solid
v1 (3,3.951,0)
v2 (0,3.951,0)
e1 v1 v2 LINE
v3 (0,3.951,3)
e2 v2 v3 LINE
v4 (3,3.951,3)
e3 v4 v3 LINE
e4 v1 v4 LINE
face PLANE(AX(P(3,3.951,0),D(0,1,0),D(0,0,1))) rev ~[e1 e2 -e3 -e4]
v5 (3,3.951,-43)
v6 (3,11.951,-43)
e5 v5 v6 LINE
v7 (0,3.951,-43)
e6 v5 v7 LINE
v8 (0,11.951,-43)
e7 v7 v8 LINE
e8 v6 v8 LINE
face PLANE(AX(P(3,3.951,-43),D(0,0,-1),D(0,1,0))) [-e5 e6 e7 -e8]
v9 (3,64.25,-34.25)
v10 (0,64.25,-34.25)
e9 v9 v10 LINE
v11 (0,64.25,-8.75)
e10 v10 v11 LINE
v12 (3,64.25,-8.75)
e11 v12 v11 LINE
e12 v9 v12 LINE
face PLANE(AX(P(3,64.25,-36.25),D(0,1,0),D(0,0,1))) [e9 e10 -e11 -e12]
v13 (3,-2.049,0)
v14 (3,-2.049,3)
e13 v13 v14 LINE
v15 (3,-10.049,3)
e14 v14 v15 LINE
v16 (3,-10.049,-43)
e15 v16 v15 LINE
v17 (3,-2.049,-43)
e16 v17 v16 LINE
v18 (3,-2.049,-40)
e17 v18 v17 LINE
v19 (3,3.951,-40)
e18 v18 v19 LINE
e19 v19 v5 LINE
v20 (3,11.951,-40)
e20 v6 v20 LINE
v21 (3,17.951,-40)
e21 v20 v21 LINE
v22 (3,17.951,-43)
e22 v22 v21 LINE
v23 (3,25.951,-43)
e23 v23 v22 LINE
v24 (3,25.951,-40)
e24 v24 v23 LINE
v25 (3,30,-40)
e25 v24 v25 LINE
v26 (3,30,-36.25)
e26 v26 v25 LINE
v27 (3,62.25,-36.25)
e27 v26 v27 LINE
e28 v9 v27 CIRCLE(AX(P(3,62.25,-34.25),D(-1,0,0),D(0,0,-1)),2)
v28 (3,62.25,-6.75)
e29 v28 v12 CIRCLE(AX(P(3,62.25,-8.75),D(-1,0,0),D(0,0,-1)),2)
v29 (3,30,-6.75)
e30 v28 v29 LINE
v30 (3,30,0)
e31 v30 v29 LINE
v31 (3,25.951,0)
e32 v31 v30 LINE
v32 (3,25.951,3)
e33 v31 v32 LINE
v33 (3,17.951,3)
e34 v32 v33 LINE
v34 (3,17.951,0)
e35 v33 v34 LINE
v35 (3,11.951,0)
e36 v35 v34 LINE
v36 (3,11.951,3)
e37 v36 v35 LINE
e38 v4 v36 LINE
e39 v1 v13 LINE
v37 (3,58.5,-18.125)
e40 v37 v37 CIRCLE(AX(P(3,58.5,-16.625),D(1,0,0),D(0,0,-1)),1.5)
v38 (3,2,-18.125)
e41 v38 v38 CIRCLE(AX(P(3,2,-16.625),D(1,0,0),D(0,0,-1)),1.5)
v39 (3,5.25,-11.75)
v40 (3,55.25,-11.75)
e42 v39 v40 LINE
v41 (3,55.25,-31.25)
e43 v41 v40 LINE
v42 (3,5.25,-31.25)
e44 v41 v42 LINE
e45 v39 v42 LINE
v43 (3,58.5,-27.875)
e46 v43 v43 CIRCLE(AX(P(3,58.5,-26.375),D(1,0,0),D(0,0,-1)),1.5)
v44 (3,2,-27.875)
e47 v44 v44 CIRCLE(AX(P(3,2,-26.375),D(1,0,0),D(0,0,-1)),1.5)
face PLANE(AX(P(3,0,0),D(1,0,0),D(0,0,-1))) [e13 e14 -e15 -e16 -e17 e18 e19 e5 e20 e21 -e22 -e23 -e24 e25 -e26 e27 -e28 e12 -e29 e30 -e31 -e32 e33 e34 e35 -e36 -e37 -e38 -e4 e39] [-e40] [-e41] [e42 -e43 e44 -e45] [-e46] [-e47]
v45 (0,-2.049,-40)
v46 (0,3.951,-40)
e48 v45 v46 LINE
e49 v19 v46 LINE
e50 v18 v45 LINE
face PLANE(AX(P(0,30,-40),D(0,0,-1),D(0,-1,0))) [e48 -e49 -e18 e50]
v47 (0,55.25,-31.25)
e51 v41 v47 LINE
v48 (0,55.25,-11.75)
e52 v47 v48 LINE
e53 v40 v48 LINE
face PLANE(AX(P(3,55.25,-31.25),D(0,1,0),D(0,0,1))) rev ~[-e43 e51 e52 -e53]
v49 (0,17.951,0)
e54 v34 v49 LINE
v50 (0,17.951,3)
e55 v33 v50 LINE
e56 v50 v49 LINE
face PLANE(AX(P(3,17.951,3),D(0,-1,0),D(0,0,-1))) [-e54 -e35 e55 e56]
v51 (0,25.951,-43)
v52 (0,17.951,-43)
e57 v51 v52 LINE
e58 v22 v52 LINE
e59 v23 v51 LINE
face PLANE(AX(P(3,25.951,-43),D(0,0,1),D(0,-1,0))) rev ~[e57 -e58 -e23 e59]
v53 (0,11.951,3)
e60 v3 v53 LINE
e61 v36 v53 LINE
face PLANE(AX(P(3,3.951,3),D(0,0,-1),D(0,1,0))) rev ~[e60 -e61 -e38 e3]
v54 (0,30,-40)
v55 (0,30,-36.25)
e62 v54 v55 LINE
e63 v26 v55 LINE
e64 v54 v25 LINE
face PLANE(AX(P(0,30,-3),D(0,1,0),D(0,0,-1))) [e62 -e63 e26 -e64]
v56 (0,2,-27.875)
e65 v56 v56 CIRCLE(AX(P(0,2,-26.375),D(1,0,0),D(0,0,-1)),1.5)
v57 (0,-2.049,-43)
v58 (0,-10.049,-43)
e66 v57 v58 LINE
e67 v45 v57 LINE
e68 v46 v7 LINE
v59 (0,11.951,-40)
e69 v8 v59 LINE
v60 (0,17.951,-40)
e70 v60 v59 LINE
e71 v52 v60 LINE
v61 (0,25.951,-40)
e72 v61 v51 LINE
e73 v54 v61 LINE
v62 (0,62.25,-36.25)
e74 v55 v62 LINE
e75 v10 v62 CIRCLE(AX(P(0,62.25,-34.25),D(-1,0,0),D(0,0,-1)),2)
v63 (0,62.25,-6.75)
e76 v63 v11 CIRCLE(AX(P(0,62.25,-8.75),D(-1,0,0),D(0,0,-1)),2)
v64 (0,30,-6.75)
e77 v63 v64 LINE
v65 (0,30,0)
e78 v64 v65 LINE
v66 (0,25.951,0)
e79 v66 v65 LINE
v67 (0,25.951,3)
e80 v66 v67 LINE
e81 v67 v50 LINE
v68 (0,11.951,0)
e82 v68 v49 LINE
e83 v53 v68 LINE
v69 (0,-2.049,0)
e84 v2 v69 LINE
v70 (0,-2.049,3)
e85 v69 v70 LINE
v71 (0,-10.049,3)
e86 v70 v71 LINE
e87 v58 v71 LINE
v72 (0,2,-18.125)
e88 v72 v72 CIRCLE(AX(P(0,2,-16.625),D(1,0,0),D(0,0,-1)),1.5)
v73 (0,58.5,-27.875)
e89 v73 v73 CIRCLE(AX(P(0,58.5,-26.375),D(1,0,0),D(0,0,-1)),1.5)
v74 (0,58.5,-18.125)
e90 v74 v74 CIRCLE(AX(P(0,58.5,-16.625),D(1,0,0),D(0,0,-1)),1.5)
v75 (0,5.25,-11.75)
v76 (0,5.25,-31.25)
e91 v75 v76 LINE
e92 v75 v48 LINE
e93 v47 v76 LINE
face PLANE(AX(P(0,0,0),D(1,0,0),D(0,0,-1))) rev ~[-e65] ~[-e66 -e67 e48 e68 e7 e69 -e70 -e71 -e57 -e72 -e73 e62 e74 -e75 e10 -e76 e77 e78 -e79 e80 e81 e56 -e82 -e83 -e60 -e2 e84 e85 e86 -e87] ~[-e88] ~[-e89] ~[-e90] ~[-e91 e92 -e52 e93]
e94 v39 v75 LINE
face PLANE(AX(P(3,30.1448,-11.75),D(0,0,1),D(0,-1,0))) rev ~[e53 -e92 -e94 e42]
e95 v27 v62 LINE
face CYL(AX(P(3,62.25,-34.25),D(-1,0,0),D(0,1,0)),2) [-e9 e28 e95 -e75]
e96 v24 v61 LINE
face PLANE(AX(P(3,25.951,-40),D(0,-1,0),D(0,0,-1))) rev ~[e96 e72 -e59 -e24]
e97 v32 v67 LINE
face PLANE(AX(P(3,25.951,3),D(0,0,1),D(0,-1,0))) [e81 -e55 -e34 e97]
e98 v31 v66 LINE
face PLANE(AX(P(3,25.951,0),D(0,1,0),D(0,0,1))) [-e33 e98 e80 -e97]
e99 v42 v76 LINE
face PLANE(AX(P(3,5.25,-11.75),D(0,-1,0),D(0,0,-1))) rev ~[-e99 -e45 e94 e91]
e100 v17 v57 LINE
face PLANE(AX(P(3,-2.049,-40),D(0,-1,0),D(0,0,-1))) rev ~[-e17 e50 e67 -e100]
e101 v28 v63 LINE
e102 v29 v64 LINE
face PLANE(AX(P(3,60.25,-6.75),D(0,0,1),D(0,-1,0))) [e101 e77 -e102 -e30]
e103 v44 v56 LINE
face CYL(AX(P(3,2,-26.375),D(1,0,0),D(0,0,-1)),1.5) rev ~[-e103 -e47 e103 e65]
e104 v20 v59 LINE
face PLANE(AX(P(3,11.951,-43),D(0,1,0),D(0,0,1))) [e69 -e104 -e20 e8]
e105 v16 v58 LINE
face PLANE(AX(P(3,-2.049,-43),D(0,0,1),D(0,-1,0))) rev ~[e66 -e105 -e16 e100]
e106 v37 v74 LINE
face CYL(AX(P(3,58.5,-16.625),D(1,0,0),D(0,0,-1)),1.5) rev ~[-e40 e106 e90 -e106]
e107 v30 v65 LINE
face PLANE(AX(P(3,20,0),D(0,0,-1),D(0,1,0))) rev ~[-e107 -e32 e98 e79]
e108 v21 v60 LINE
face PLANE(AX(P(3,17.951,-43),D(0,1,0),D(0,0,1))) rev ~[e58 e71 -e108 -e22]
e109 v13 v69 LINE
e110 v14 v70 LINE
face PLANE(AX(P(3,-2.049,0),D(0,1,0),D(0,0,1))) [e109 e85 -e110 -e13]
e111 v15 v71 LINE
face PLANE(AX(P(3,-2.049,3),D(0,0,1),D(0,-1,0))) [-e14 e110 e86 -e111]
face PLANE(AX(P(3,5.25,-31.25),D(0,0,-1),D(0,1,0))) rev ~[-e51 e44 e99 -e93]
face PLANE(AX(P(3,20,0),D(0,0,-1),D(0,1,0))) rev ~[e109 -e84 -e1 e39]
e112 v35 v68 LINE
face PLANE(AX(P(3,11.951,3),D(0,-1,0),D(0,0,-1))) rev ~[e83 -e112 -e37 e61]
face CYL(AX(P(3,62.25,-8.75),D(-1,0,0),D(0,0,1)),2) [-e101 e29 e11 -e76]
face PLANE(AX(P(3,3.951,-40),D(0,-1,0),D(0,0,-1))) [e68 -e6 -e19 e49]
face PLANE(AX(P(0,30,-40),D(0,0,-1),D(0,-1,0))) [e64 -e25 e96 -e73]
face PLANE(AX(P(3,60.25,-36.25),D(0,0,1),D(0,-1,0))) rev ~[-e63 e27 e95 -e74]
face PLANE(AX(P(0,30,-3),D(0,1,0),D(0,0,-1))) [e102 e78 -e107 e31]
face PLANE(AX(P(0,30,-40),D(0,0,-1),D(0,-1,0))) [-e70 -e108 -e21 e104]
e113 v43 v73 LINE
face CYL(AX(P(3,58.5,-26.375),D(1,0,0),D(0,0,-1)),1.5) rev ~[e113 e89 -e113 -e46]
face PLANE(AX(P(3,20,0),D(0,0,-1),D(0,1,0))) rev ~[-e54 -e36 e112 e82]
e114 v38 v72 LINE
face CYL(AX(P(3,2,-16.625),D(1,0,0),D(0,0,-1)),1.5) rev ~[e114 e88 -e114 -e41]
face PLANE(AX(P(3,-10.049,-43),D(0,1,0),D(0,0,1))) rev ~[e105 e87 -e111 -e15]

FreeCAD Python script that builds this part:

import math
import FreeCAD as App
import Part
import Sketcher

V = App.Vector
Q = App.Units.Quantity


def edges_at(feature, points):
    """Names of the edges that pass closest to the given points."""
    edges = feature.Shape.Edges
    near = lambda p: min(range(len(edges)), key=lambda i: edges[i].distToShape(Part.Vertex(*p))[0])
    return sorted({f"Edge{near(p) + 1}" for p in points})

doc = App.newDocument("Part")
body = doc.addObject("PartDesign::Body", "Body")

# Sketch on YZ plane
sketch1 = body.newObject("Sketcher::SketchObject", "Sketch")
sketch1.AttachmentSupport = (doc.getObject("YZ_Plane"), [""])
sketch1.MapMode = "FlatFace"
sketch1.addGeometry(Part.LineSegment(V(10, -3, 0), V(0, -3, 0)), False)
sketch1.addGeometry(Part.LineSegment(V(0, -3, 0), V(0, -9.5731, 0)), False)
sketch1.addGeometry(Part.ArcOfCircle(Part.Circle(V(15, -21.5, 0), V(0, 0, 1), 19.163793), math.radians(141.510854), math.radians(218.489146)), False)
sketch1.addGeometry(Part.LineSegment(V(0, -33.4269, 0), V(0, -40, 0)), False)
sketch1.addGeometry(Part.LineSegment(V(0, -40, 0), V(10, -40, 0)), False)
sketch1.addGeometry(Part.LineSegment(V(10, -40, 0), V(10, -43, 0)), False)
sketch1.addGeometry(Part.LineSegment(V(10, -43, 0), V(20, -43, 0)), False)
sketch1.addGeometry(Part.LineSegment(V(20, -43, 0), V(20, -40, 0)), False)
sketch1.addGeometry(Part.LineSegment(V(20, -40, 0), V(30, -40, 0)), False)
sketch1.addGeometry(Part.LineSegment(V(30, -40, 0), V(30, -33.4269, 0)), False)
sketch1.addGeometry(Part.ArcOfCircle(Part.Circle(V(15, -21.5, 0), V(0, 0, 1), 19.163793), math.radians(-38.489146), math.radians(38.489146)), False)
sketch1.addGeometry(Part.LineSegment(V(30, -9.5731, 0), V(30, -3, 0)), False)
sketch1.addGeometry(Part.LineSegment(V(30, -3, 0), V(20, -3, 0)), False)
sketch1.addGeometry(Part.LineSegment(V(20, -3, 0), V(20, 0, 0)), False)
sketch1.addGeometry(Part.LineSegment(V(20, 0, 0), V(10, 0, 0)), False)
sketch1.addGeometry(Part.LineSegment(V(10, 0, 0), V(10, -3, 0)), False)
sketch1.addGeometry(Part.Circle(V(15, -21.5, 0), V(0, 0, 1), 13.175), False)
sketch1.addConstraint(Sketcher.Constraint("Coincident", 0, 2, 1, 1))
sketch1.addConstraint(Sketcher.Constraint("Coincident", 1, 2, 2, 1))
sketch1.addConstraint(Sketcher.Constraint("Coincident", 2, 2, 3, 1))
sketch1.addConstraint(Sketcher.Constraint("Coincident", 3, 2, 4, 1))
sketch1.addConstraint(Sketcher.Constraint("Coincident", 4, 2, 5, 1))
sketch1.addConstraint(Sketcher.Constraint("Coincident", 5, 2, 6, 1))
sketch1.addConstraint(Sketcher.Constraint("Coincident", 6, 2, 7, 1))
sketch1.addConstraint(Sketcher.Constraint("Coincident", 7, 2, 8, 1))
sketch1.addConstraint(Sketcher.Constraint("Coincident", 8, 2, 9, 1))
sketch1.addConstraint(Sketcher.Constraint("Coincident", 9, 2, 10, 1))
sketch1.addConstraint(Sketcher.Constraint("Coincident", 10, 2, 11, 1))
sketch1.addConstraint(Sketcher.Constraint("Coincident", 11, 2, 12, 1))
sketch1.addConstraint(Sketcher.Constraint("Coincident", 12, 2, 13, 1))
sketch1.addConstraint(Sketcher.Constraint("Coincident", 13, 2, 14, 1))
sketch1.addConstraint(Sketcher.Constraint("Coincident", 14, 2, 15, 1))
sketch1.addConstraint(Sketcher.Constraint("Coincident", 15, 2, 0, 1))
sketch1.addConstraint(Sketcher.Constraint("Horizontal", 0))
sketch1.addConstraint(Sketcher.Constraint("Vertical", 1))
sketch1.addConstraint(Sketcher.Constraint("Vertical", 3))
sketch1.addConstraint(Sketcher.Constraint("Horizontal", 4))
sketch1.addConstraint(Sketcher.Constraint("Vertical", 5))
sketch1.addConstraint(Sketcher.Constraint("Horizontal", 6))
sketch1.addConstraint(Sketcher.Constraint("Vertical", 7))
sketch1.addConstraint(Sketcher.Constraint("Horizontal", 8))
sketch1.addConstraint(Sketcher.Constraint("Vertical", 9))
sketch1.addConstraint(Sketcher.Constraint("Vertical", 11))
sketch1.addConstraint(Sketcher.Constraint("Horizontal", 12))
sketch1.addConstraint(Sketcher.Constraint("Vertical", 13))
sketch1.addConstraint(Sketcher.Constraint("Horizontal", 14))
sketch1.addConstraint(Sketcher.Constraint("Vertical", 15))
sketch1.addConstraint(Sketcher.Constraint("Coincident", 10, 3, 2, 3))
sketch1.addConstraint(Sketcher.Constraint("Coincident", 16, 3, 2, 3))
sketch1.addConstraint(Sketcher.Constraint("Equal", 2, 10))
sketch1.addConstraint(Sketcher.Constraint("PointOnObject", 0, 2, -2))
sketch1.addConstraint(Sketcher.Constraint("PointOnObject", 2, 2, -2))
sketch1.addConstraint(Sketcher.Constraint("PointOnObject", 13, 2, -1))
sketch1.addConstraint(Sketcher.Constraint("Horizontal", 4, 2, 7, 2))
sketch1.addConstraint(Sketcher.Constraint("Horizontal", 2, 2, 9, 2))
sketch1.addConstraint(Sketcher.Constraint("Horizontal", 1, 2, 10, 2))
sketch1.addConstraint(Sketcher.Constraint("Horizontal", 0, 2, 11, 2))
sketch1.addConstraint(Sketcher.Constraint("Vertical", 7, 2, 12, 2))
sketch1.addConstraint(Sketcher.Constraint("Vertical", 5, 2, 14, 2))
sketch1.addConstraint(Sketcher.Constraint("Equal", 4, 6))
sketch1.addConstraint(Sketcher.Constraint("Equal", 6, 8))
sketch1.addConstraint(Sketcher.Constraint("Equal", 1, 3))
sketch1.addConstraint(Sketcher.Constraint("Equal", 7, 13))
sketch1.addConstraint(Sketcher.Constraint("DistanceX", 0, 2, 0, 1, Q("10 mm")))
sketch1.addConstraint(Sketcher.Constraint("Diameter", 16, Q("26.35 mm")))
sketch1.addConstraint(Sketcher.Constraint("DistanceY", 5, 2, 5, 1, Q("3 mm")))
sketch1.addConstraint(Sketcher.Constraint("DistanceY", 3, 2, -1, 1, Q("40 mm")))
sketch1.addConstraint(Sketcher.Constraint("Radius", 2, Q("19.1638 mm")))
pad1 = body.newObject("PartDesign::Pad", "Pad")
pad1.Profile = sketch1
pad1.Length = 3

# Sketch on YZ plane
sketch2 = body.newObject("Sketcher::SketchObject", "Sketch001")
sketch2.AttachmentSupport = (doc.getObject("YZ_Plane"), [""])
sketch2.MapMode = "FlatFace"
sketch2.AttachmentOffset = App.Placement(V(0, 0, 3), App.Rotation())
sketch2.addGeometry(Part.LineSegment(V(30, 0, 0), V(20, 0, 0)), False)
sketch2.addGeometry(Part.LineSegment(V(20, 0, 0), V(20, -3, 0)), False)
sketch2.addGeometry(Part.LineSegment(V(20, -3, 0), V(30, -3, 0)), False)
sketch2.addGeometry(Part.LineSegment(V(30, -3, 0), V(30, 0, 0)), False)
sketch2.addGeometry(Part.LineSegment(V(10, 3, 0), V(10, 0, 0)), False)
sketch2.addGeometry(Part.LineSegment(V(10, 0, 0), V(20, 0, 0)), False)
sketch2.addGeometry(Part.LineSegment(V(20, 0, 0), V(20, 3, 0)), False)
sketch2.addGeometry(Part.LineSegment(V(20, 3, 0), V(10, 3, 0)), False)
sketch2.addGeometry(Part.LineSegment(V(0, -3, 0), V(10, -3, 0)), False)
sketch2.addGeometry(Part.LineSegment(V(10, -3, 0), V(10, 0, 0)), False)
sketch2.addGeometry(Part.LineSegment(V(10, 0, 0), V(0, 0, 0)), False)
sketch2.addGeometry(Part.LineSegment(V(0, 0, 0), V(0, -3, 0)), False)
sketch2.addConstraint(Sketcher.Constraint("Coincident", 0, 2, 1, 1))
sketch2.addConstraint(Sketcher.Constraint("Coincident", 1, 2, 2, 1))
sketch2.addConstraint(Sketcher.Constraint("Coincident", 2, 2, 3, 1))
sketch2.addConstraint(Sketcher.Constraint("Coincident", 3, 2, 0, 1))
sketch2.addConstraint(Sketcher.Constraint("Coincident", 4, 2, 5, 1))
sketch2.addConstraint(Sketcher.Constraint("Coincident", 5, 2, 6, 1))
sketch2.addConstraint(Sketcher.Constraint("Coincident", 6, 2, 7, 1))
sketch2.addConstraint(Sketcher.Constraint("Coincident", 7, 2, 4, 1))
sketch2.addConstraint(Sketcher.Constraint("Coincident", 8, 2, 9, 1))
sketch2.addConstraint(Sketcher.Constraint("Coincident", 9, 2, 10, 1))
sketch2.addConstraint(Sketcher.Constraint("Coincident", 10, 2, 11, 1))
sketch2.addConstraint(Sketcher.Constraint("Coincident", 11, 2, 8, 1))
sketch2.addConstraint(Sketcher.Constraint("Horizontal", 0))
sketch2.addConstraint(Sketcher.Constraint("Vertical", 1))
sketch2.addConstraint(Sketcher.Constraint("Horizontal", 2))
sketch2.addConstraint(Sketcher.Constraint("Vertical", 3))
sketch2.addConstraint(Sketcher.Constraint("Vertical", 4))
sketch2.addConstraint(Sketcher.Constraint("Horizontal", 5))
sketch2.addConstraint(Sketcher.Constraint("Vertical", 6))
sketch2.addConstraint(Sketcher.Constraint("Horizontal", 7))
sketch2.addConstraint(Sketcher.Constraint("Horizontal", 8))
sketch2.addConstraint(Sketcher.Constraint("Vertical", 9))
sketch2.addConstraint(Sketcher.Constraint("Horizontal", 10))
sketch2.addConstraint(Sketcher.Constraint("Vertical", 11))
sketch2.addConstraint(Sketcher.Constraint("Coincident", 10, 2, -1, 1))
sketch2.addConstraint(Sketcher.Constraint("Coincident", 5, 2, 0, 2))
sketch2.addConstraint(Sketcher.Constraint("Coincident", 9, 2, 4, 2))
sketch2.addConstraint(Sketcher.Constraint("Horizontal", 2, 2, 8, 2))
sketch2.addConstraint(Sketcher.Constraint("Equal", 2, 5))
sketch2.addConstraint(Sketcher.Constraint("Equal", 7, 8))
sketch2.addConstraint(Sketcher.Constraint("Equal", 3, 4))
sketch2.addConstraint(Sketcher.Constraint("DistanceY", 1, 2, 1, 1, Q("3 mm")))
sketch2.addConstraint(Sketcher.Constraint("DistanceX", 0, 2, 0, 1, Q("10 mm")))
pad2 = body.newObject("PartDesign::Pad", "Pad001")
pad2.Profile = sketch2
pad2.Length = 3
pad2.Reversed = True

# Sketch on YZ plane
sketch3 = body.newObject("Sketcher::SketchObject", "Sketch002")
sketch3.AttachmentSupport = (doc.getObject("YZ_Plane"), [""])
sketch3.MapMode = "FlatFace"
sketch3.AttachmentOffset = App.Placement(V(0, 0, 3), App.Rotation())
sketch3.addGeometry(Part.ArcOfCircle(Part.Circle(V(15, -21.5, 0), V(0, 0, 1), 26.2155), math.radians(124.902496), math.radians(415.097504)), False)
sketch3.addGeometry(Part.LineSegment(V(30, 0, 0), V(30, -40, 0)), False)
sketch3.addGeometry(Part.LineSegment(V(30, -40, 0), V(0, -40, 0)), False)
sketch3.addGeometry(Part.LineSegment(V(0, -40, 0), V(0, 0, 0)), False)
sketch3.addGeometry(Part.LineSegment(V(0, 0, 0), V(30, 0, 0)), False)
sketch3.addGeometry(Part.ArcOfCircle(Part.Circle(V(15, -21.5, 0), V(0, 0, 1), 26.2155), math.radians(55.097504), math.radians(124.902496)), False)
sketch3.addConstraint(Sketcher.Constraint("Coincident", 0, 2, 1, 1))
sketch3.addConstraint(Sketcher.Constraint("Coincident", 1, 2, 2, 1))
sketch3.addConstraint(Sketcher.Constraint("Coincident", 2, 2, 3, 1))
sketch3.addConstraint(Sketcher.Constraint("Coincident", 3, 2, 0, 1))
sketch3.addConstraint(Sketcher.Constraint("Coincident", 4, 1, 5, 2))
sketch3.addConstraint(Sketcher.Constraint("Coincident", 5, 1, 4, 2))
sketch3.addConstraint(Sketcher.Constraint("Vertical", 1))
sketch3.addConstraint(Sketcher.Constraint("Horizontal", 2))
sketch3.addConstraint(Sketcher.Constraint("Vertical", 3))
sketch3.addConstraint(Sketcher.Constraint("Horizontal", 4))
sketch3.addConstraint(Sketcher.Constraint("Coincident", 3, 2, -1, 1))
sketch3.addConstraint(Sketcher.Constraint("Coincident", 4, 1, -1, 1))
sketch3.addConstraint(Sketcher.Constraint("Coincident", 5, 3, 0, 3))
sketch3.addConstraint(Sketcher.Constraint("PointOnObject", 0, 2, -1))
sketch3.addConstraint(Sketcher.Constraint("DistanceX", 2, 2, 2, 1, Q("30 mm")))
sketch3.addConstraint(Sketcher.Constraint("DistanceY", 1, 2, 1, 1, Q("40 mm")))
sketch3.addConstraint(Sketcher.Constraint("DistanceY", 0, 3, -1, 1, Q("21.5 mm")))
pocket1 = body.newObject("PartDesign::Pocket", "Pocket")
pocket1.Profile = sketch3
pocket1.Length = 10

# Sketch on YZ plane
sketch4 = body.newObject("Sketcher::SketchObject", "Sketch003")
sketch4.AttachmentSupport = (doc.getObject("YZ_Plane"), [""])
sketch4.MapMode = "FlatFace"
sketch4.AttachmentOffset = App.Placement(V(0, 0, 3), App.Rotation())
sketch4.addGeometry(Part.Circle(V(15, -21.5, 0), V(0, 0, 1), 13.175), False)
sketch4.addGeometry(Part.Circle(V(15, -21.5, 0), V(0, 0, 1), 3), False)
sketch4.addConstraint(Sketcher.Constraint("Coincident", 1, 3, 0, 3))
sketch4.addConstraint(Sketcher.Constraint("Diameter", 1, Q("6 mm")))
sketch4.addConstraint(Sketcher.Constraint("Diameter", 0, Q("26.35 mm")))
sketch4.addConstraint(Sketcher.Constraint("DistanceX", -1, 1, 0, 3, Q("15 mm")))
sketch4.addConstraint(Sketcher.Constraint("DistanceY", 0, 3, -1, 1, Q("21.5 mm")))
pad3 = body.newObject("PartDesign::Pad", "Pad002")
pad3.Profile = sketch4
pad3.Length = 3
pad3.Reversed = True

# Sketch on YZ plane
sketch5 = body.newObject("Sketcher::SketchObject", "Sketch004")
sketch5.AttachmentSupport = (doc.getObject("YZ_Plane"), [""])
sketch5.MapMode = "FlatFace"
sketch5.AttachmentOffset = App.Placement(V(0, 0, 3), App.Rotation())
sketch5.addGeometry(Part.LineSegment(V(17.951, 0, 0), V(25.951, 0, 0)), False)
sketch5.addGeometry(Part.LineSegment(V(25.951, 0, 0), V(25.951, 3, 0)), False)
sketch5.addGeometry(Part.LineSegment(V(25.951, 3, 0), V(17.951, 3, 0)), False)
sketch5.addGeometry(Part.LineSegment(V(17.951, 3, 0), V(17.951, 0, 0)), False)
sketch5.addGeometry(Part.LineSegment(V(11.951, 0, 0), V(11.951, 3, 0)), False)
sketch5.addGeometry(Part.LineSegment(V(11.951, 3, 0), V(3.951, 3, 0)), False)
sketch5.addGeometry(Part.LineSegment(V(3.951, 3, 0), V(3.951, 0, 0)), False)
sketch5.addGeometry(Part.LineSegment(V(3.951, 0, 0), V(11.951, 0, 0)), False)
sketch5.addGeometry(Part.LineSegment(V(25.951, -43, 0), V(25.951, -40, 0)), False)
sketch5.addGeometry(Part.LineSegment(V(25.951, -40, 0), V(17.951, -40, 0)), False)
sketch5.addGeometry(Part.LineSegment(V(17.951, -40, 0), V(17.951, -43, 0)), False)
sketch5.addGeometry(Part.LineSegment(V(17.951, -43, 0), V(25.951, -43, 0)), False)
sketch5.addGeometry(Part.LineSegment(V(3.951, -43, 0), V(11.951, -43, 0)), False)
sketch5.addGeometry(Part.LineSegment(V(11.951, -43, 0), V(11.951, -40, 0)), False)
sketch5.addGeometry(Part.LineSegment(V(11.951, -40, 0), V(3.951, -40, 0)), False)
sketch5.addGeometry(Part.LineSegment(V(3.951, -40, 0), V(3.951, -43, 0)), False)
sketch5.addConstraint(Sketcher.Constraint("Coincident", 0, 2, 1, 1))
sketch5.addConstraint(Sketcher.Constraint("Coincident", 1, 2, 2, 1))
sketch5.addConstraint(Sketcher.Constraint("Coincident", 2, 2, 3, 1))
sketch5.addConstraint(Sketcher.Constraint("Coincident", 3, 2, 0, 1))
sketch5.addConstraint(Sketcher.Constraint("Coincident", 4, 2, 5, 1))
sketch5.addConstraint(Sketcher.Constraint("Coincident", 5, 2, 6, 1))
sketch5.addConstraint(Sketcher.Constraint("Coincident", 6, 2, 7, 1))
sketch5.addConstraint(Sketcher.Constraint("Coincident", 7, 2, 4, 1))
sketch5.addConstraint(Sketcher.Constraint("Coincident", 8, 2, 9, 1))
sketch5.addConstraint(Sketcher.Constraint("Coincident", 9, 2, 10, 1))
sketch5.addConstraint(Sketcher.Constraint("Coincident", 10, 2, 11, 1))
sketch5.addConstraint(Sketcher.Constraint("Coincident", 11, 2, 8, 1))
sketch5.addConstraint(Sketcher.Constraint("Coincident", 12, 2, 13, 1))
sketch5.addConstraint(Sketcher.Constraint("Coincident", 13, 2, 14, 1))
sketch5.addConstraint(Sketcher.Constraint("Coincident", 14, 2, 15, 1))
sketch5.addConstraint(Sketcher.Constraint("Coincident", 15, 2, 12, 1))
sketch5.addConstraint(Sketcher.Constraint("Horizontal", 0))
sketch5.addConstraint(Sketcher.Constraint("Vertical", 1))
sketch5.addConstraint(Sketcher.Constraint("Horizontal", 2))
sketch5.addConstraint(Sketcher.Constraint("Vertical", 3))
sketch5.addConstraint(Sketcher.Constraint("Vertical", 4))
sketch5.addConstraint(Sketcher.Constraint("Horizontal", 5))
sketch5.addConstraint(Sketcher.Constraint("Vertical", 6))
sketch5.addConstraint(Sketcher.Constraint("Horizontal", 7))
sketch5.addConstraint(Sketcher.Constraint("Vertical", 8))
sketch5.addConstraint(Sketcher.Constraint("Horizontal", 9))
sketch5.addConstraint(Sketcher.Constraint("Vertical", 10))
sketch5.addConstraint(Sketcher.Constraint("Horizontal", 11))
sketch5.addConstraint(Sketcher.Constraint("Horizontal", 12))
sketch5.addConstraint(Sketcher.Constraint("Vertical", 13))
sketch5.addConstraint(Sketcher.Constraint("Horizontal", 14))
sketch5.addConstraint(Sketcher.Constraint("Vertical", 15))
sketch5.addConstraint(Sketcher.Constraint("PointOnObject", 0, 2, -1))
sketch5.addConstraint(Sketcher.Constraint("PointOnObject", 6, 2, -1))
sketch5.addConstraint(Sketcher.Constraint("Horizontal", 2, 2, 4, 2))
sketch5.addConstraint(Sketcher.Constraint("Horizontal", 11, 2, 12, 2))
sketch5.addConstraint(Sketcher.Constraint("Horizontal", 9, 2, 13, 2))
sketch5.addConstraint(Sketcher.Constraint("Vertical", 1, 2, 8, 2))
sketch5.addConstraint(Sketcher.Constraint("Vertical", 3, 2, 9, 2))
sketch5.addConstraint(Sketcher.Constraint("Vertical", 7, 2, 12, 2))
sketch5.addConstraint(Sketcher.Constraint("Vertical", 6, 2, 14, 2))
sketch5.addConstraint(Sketcher.Constraint("Equal", 2, 5))
sketch5.addConstraint(Sketcher.Constraint("Equal", 6, 8))
sketch5.addConstraint(Sketcher.Constraint("DistanceX", 0, 1, 0, 2, Q("8 mm")))
sketch5.addConstraint(Sketcher.Constraint("DistanceY", 1, 1, 1, 2, Q("3 mm")))
sketch5.addConstraint(Sketcher.Constraint("DistanceY", 8, 2, -1, 1, Q("40 mm")))
sketch5.addConstraint(Sketcher.Constraint("DistanceX", 4, 2, 2, 2, Q("6 mm")))
sketch5.addConstraint(Sketcher.Constraint("DistanceX", -1, 1, 0, 2, Q("25.951 mm")))
pad4 = body.newObject("PartDesign::Pad", "Pad003")
pad4.Profile = sketch5
pad4.Length = 3
pad4.Reversed = True

# Sketch on YZ plane
sketch6 = body.newObject("Sketcher::SketchObject", "Sketch005")
sketch6.AttachmentSupport = (doc.getObject("YZ_Plane"), [""])
sketch6.MapMode = "FlatFace"
sketch6.AttachmentOffset = App.Placement(V(0, 0, 3), App.Rotation())
sketch6.addGeometry(Part.LineSegment(V(55.25, -31.25, 0), V(30, -31.25, 0)), False)
sketch6.addGeometry(Part.LineSegment(V(30, -31.25, 0), V(30, -36.25, 0)), False)
sketch6.addGeometry(Part.LineSegment(V(30, -36.25, 0), V(60.25, -36.25, 0)), False)
sketch6.addGeometry(Part.LineSegment(V(60.25, -36.25, 0), V(60.25, -6.75, 0)), False)
sketch6.addGeometry(Part.LineSegment(V(60.25, -6.75, 0), V(30, -6.75, 0)), False)
sketch6.addGeometry(Part.LineSegment(V(30, -6.75, 0), V(30, -11.75, 0)), False)
sketch6.addGeometry(Part.LineSegment(V(30, -11.75, 0), V(55.25, -11.75, 0)), False)
sketch6.addGeometry(Part.LineSegment(V(55.25, -11.75, 0), V(55.25, -31.25, 0)), False)
sketch6.addConstraint(Sketcher.Constraint("Coincident", 0, 2, 1, 1))
sketch6.addConstraint(Sketcher.Constraint("Coincident", 1, 2, 2, 1))
sketch6.addConstraint(Sketcher.Constraint("Coincident", 2, 2, 3, 1))
sketch6.addConstraint(Sketcher.Constraint("Coincident", 3, 2, 4, 1))
sketch6.addConstraint(Sketcher.Constraint("Coincident", 4, 2, 5, 1))
sketch6.addConstraint(Sketcher.Constraint("Coincident", 5, 2, 6, 1))
sketch6.addConstraint(Sketcher.Constraint("Coincident", 6, 2, 7, 1))
sketch6.addConstraint(Sketcher.Constraint("Coincident", 7, 2, 0, 1))
sketch6.addConstraint(Sketcher.Constraint("Horizontal", 0))
sketch6.addConstraint(Sketcher.Constraint("Vertical", 1))
sketch6.addConstraint(Sketcher.Constraint("Horizontal", 2))
sketch6.addConstraint(Sketcher.Constraint("Vertical", 3))
sketch6.addConstraint(Sketcher.Constraint("Horizontal", 4))
sketch6.addConstraint(Sketcher.Constraint("Vertical", 5))
sketch6.addConstraint(Sketcher.Constraint("Horizontal", 6))
sketch6.addConstraint(Sketcher.Constraint("Vertical", 7))
sketch6.addConstraint(Sketcher.Constraint("Vertical", 1, 2, 4, 2))
sketch6.addConstraint(Sketcher.Constraint("Equal", 1, 5))
sketch6.addConstraint(Sketcher.Constraint("DistanceY", 1, 2, 1, 1, Q("5 mm")))
sketch6.addConstraint(Sketcher.Constraint("DistanceY", 3, 1, 3, 2, Q("29.5 mm")))
sketch6.addConstraint(Sketcher.Constraint("DistanceX", -1, 1, 0, 2, Q("30 mm")))
sketch6.addConstraint(Sketcher.Constraint("DistanceX", 6, 2, 3, 2, Q("5 mm")))
sketch6.addConstraint(Sketcher.Constraint("DistanceX", 0, 2, 0, 1, Q("25.25 mm")))
sketch6.addConstraint(Sketcher.Constraint("DistanceY", 0, 2, -1, 1, Q("31.25 mm")))
pad5 = body.newObject("PartDesign::Pad", "Pad004")
pad5.Profile = sketch6
pad5.Length = 3
pad5.Reversed = True

# Sketch on YZ plane
sketch7 = body.newObject("Sketcher::SketchObject", "Sketch006")
sketch7.AttachmentSupport = (doc.getObject("YZ_Plane"), [""])
sketch7.MapMode = "FlatFace"
sketch7.AttachmentOffset = App.Placement(V(0, 0, 3), App.Rotation())
sketch7.addGeometry(Part.LineSegment(V(30.1448, -31.25, 0), V(30.1448, -11.75, 0)), False)
sketch7.addGeometry(Part.LineSegment(V(30.1448, -11.75, 0), V(5.25, -11.75, 0)), False)
sketch7.addGeometry(Part.LineSegment(V(5.25, -11.75, 0), V(5.25, -31.25, 0)), False)
sketch7.addGeometry(Part.LineSegment(V(5.25, -31.25, 0), V(30.1448, -31.25, 0)), False)
sketch7.addConstraint(Sketcher.Constraint("Coincident", 0, 2, 1, 1))
sketch7.addConstraint(Sketcher.Constraint("Coincident", 1, 2, 2, 1))
sketch7.addConstraint(Sketcher.Constraint("Coincident", 2, 2, 3, 1))
sketch7.addConstraint(Sketcher.Constraint("Coincident", 3, 2, 0, 1))
sketch7.addConstraint(Sketcher.Constraint("Vertical", 0))
sketch7.addConstraint(Sketcher.Constraint("Horizontal", 1))
sketch7.addConstraint(Sketcher.Constraint("Vertical", 2))
sketch7.addConstraint(Sketcher.Constraint("Horizontal", 3))
sketch7.addConstraint(Sketcher.Constraint("DistanceY", 0, 1, 0, 2, Q("19.5 mm")))
sketch7.addConstraint(Sketcher.Constraint("DistanceY", 0, 2, -1, 1, Q("11.75 mm")))
sketch7.addConstraint(Sketcher.Constraint("DistanceX", -1, 1, 1, 2, Q("5.25 mm")))
sketch7.addConstraint(Sketcher.Constraint("DistanceX", 1, 2, 1, 1, Q("24.8948 mm")))
pocket2 = body.newObject("PartDesign::Pocket", "Pocket001")
pocket2.Profile = sketch7
pocket2.Length = 3

# Sketch on YZ plane
sketch8 = body.newObject("Sketcher::SketchObject", "Sketch007")
sketch8.AttachmentSupport = (doc.getObject("YZ_Plane"), [""])
sketch8.MapMode = "FlatFace"
sketch8.AttachmentOffset = App.Placement(V(0, 0, 3), App.Rotation())
sketch8.addGeometry(Part.LineSegment(V(0, 0, 0), V(-2.049, 0, 0)), False)
sketch8.addGeometry(Part.LineSegment(V(-2.049, 0, 0), V(-2.049, 3, 0)), False)
sketch8.addGeometry(Part.LineSegment(V(-2.049, 3, 0), V(-10.049, 3, 0)), False)
sketch8.addGeometry(Part.LineSegment(V(-10.049, 3, 0), V(-10.049, -43, 0)), False)
sketch8.addGeometry(Part.LineSegment(V(-10.049, -43, 0), V(-2.049, -43, 0)), False)
sketch8.addGeometry(Part.LineSegment(V(-2.049, -43, 0), V(-2.049, -40, 0)), False)
sketch8.addGeometry(Part.LineSegment(V(-2.049, -40, 0), V(0, -40, 0)), False)
sketch8.addGeometry(Part.LineSegment(V(0, -40, 0), V(0, 0, 0)), False)
sketch8.addGeometry(Part.LineSegment(V(64.25, -6.75, 0), V(60.25, -6.75, 0)), False)
sketch8.addGeometry(Part.LineSegment(V(60.25, -6.75, 0), V(60.25, -36.25, 0)), False)
sketch8.addGeometry(Part.LineSegment(V(60.25, -36.25, 0), V(64.25, -36.25, 0)), False)
sketch8.addGeometry(Part.LineSegment(V(64.25, -36.25, 0), V(64.25, -6.75, 0)), False)
sketch8.addConstraint(Sketcher.Constraint("Coincident", 0, 2, 1, 1))
sketch8.addConstraint(Sketcher.Constraint("Coincident", 1, 2, 2, 1))
sketch8.addConstraint(Sketcher.Constraint("Coincident", 2, 2, 3, 1))
sketch8.addConstraint(Sketcher.Constraint("Coincident", 3, 2, 4, 1))
sketch8.addConstraint(Sketcher.Constraint("Coincident", 4, 2, 5, 1))
sketch8.addConstraint(Sketcher.Constraint("Coincident", 5, 2, 6, 1))
sketch8.addConstraint(Sketcher.Constraint("Coincident", 6, 2, 7, 1))
sketch8.addConstraint(Sketcher.Constraint("Coincident", 7, 2, 0, 1))
sketch8.addConstraint(Sketcher.Constraint("Coincident", 8, 2, 9, 1))
sketch8.addConstraint(Sketcher.Constraint("Coincident", 9, 2, 10, 1))
sketch8.addConstraint(Sketcher.Constraint("Coincident", 10, 2, 11, 1))
sketch8.addConstraint(Sketcher.Constraint("Coincident", 11, 2, 8, 1))
sketch8.addConstraint(Sketcher.Constraint("Horizontal", 0))
sketch8.addConstraint(Sketcher.Constraint("Vertical", 1))
sketch8.addConstraint(Sketcher.Constraint("Horizontal", 2))
sketch8.addConstraint(Sketcher.Constraint("Vertical", 3))
sketch8.addConstraint(Sketcher.Constraint("Horizontal", 4))
sketch8.addConstraint(Sketcher.Constraint("Vertical", 5))
sketch8.addConstraint(Sketcher.Constraint("Horizontal", 6))
sketch8.addConstraint(Sketcher.Constraint("Vertical", 7))
sketch8.addConstraint(Sketcher.Constraint("Horizontal", 8))
sketch8.addConstraint(Sketcher.Constraint("Vertical", 9))
sketch8.addConstraint(Sketcher.Constraint("Horizontal", 10))
sketch8.addConstraint(Sketcher.Constraint("Vertical", 11))
sketch8.addConstraint(Sketcher.Constraint("Coincident", 7, 2, -1, 1))
sketch8.addConstraint(Sketcher.Constraint("Vertical", 1, 2, 4, 2))
sketch8.addConstraint(Sketcher.Constraint("Equal", 1, 5))
sketch8.addConstraint(Sketcher.Constraint("DistanceX", 8, 2, 8, 1, Q("4 mm")))
sketch8.addConstraint(Sketcher.Constraint("DistanceX", 2, 2, 2, 1, Q("8 mm")))
sketch8.addConstraint(Sketcher.Constraint("DistanceY", 1, 1, 1, 2, Q("3 mm")))
sketch8.addConstraint(Sketcher.Constraint("DistanceY", 3, 2, 3, 1, Q("46 mm")))
sketch8.addConstraint(Sketcher.Constraint("DistanceY", 9, 2, 9, 1, Q("29.5 mm")))
sketch8.addConstraint(Sketcher.Constraint("DistanceX", 0, 2, 0, 1, Q("2.049 mm")))
sketch8.addConstraint(Sketcher.Constraint("DistanceX", -1, 1, 8, 2, Q("60.25 mm")))
sketch8.addConstraint(Sketcher.Constraint("DistanceY", 8, 2, -1, 1, Q("6.75 mm")))
pad6 = body.newObject("PartDesign::Pad", "Pad005")
pad6.Profile = sketch8
pad6.Length = 3
pad6.Reversed = True

# Sketch on YZ plane
sketch9 = body.newObject("Sketcher::SketchObject", "Sketch008")
sketch9.AttachmentSupport = (doc.getObject("YZ_Plane"), [""])
sketch9.MapMode = "FlatFace"
sketch9.AttachmentOffset = App.Placement(V(0, 0, 3), App.Rotation())
sketch9.addGeometry(Part.Circle(V(58.5, -26.375, 0), V(0, 0, 1), 1.5), False)
sketch9.addGeometry(Part.Circle(V(58.5, -16.625, 0), V(0, 0, 1), 1.5), False)
sketch9.addGeometry(Part.Circle(V(2, -26.375, 0), V(0, 0, 1), 1.5), False)
sketch9.addGeometry(Part.Circle(V(2, -16.625, 0), V(0, 0, 1), 1.5), False)
sketch9.addConstraint(Sketcher.Constraint("Equal", 0, 1))
sketch9.addConstraint(Sketcher.Constraint("Equal", 1, 2))
sketch9.addConstraint(Sketcher.Constraint("Equal", 2, 3))
sketch9.addConstraint(Sketcher.Constraint("Horizontal", 0, 3, 2, 3))
sketch9.addConstraint(Sketcher.Constraint("Horizontal", 1, 3, 3, 3))
sketch9.addConstraint(Sketcher.Constraint("Vertical", 0, 3, 1, 3))
sketch9.addConstraint(Sketcher.Constraint("Vertical", 2, 3, 3, 3))
sketch9.addConstraint(Sketcher.Constraint("Diameter", 0, Q("3 mm")))
sketch9.addConstraint(Sketcher.Constraint("DistanceX", -1, 1, 2, 3, Q("2 mm")))
sketch9.addConstraint(Sketcher.Constraint("DistanceX", -1, 1, 0, 3, Q("58.5 mm")))
sketch9.addConstraint(Sketcher.Constraint("DistanceY", 0, 3, 1, 3, Q("9.75 mm")))
sketch9.addConstraint(Sketcher.Constraint("DistanceY", 0, 3, -1, 1, Q("26.375 mm")))
pocket3 = body.newObject("PartDesign::Pocket", "Pocket002")
pocket3.Profile = sketch9
pocket3.Length = 3
doc.recompute()

fillet = body.newObject("PartDesign::Fillet", "Fillet")
fillet.Base = (pocket3, edges_at(pocket3, [(1.5, 64.25, -6.75), (1.5, 64.25, -36.25)]))
fillet.Radius = 2

doc.recompute()
